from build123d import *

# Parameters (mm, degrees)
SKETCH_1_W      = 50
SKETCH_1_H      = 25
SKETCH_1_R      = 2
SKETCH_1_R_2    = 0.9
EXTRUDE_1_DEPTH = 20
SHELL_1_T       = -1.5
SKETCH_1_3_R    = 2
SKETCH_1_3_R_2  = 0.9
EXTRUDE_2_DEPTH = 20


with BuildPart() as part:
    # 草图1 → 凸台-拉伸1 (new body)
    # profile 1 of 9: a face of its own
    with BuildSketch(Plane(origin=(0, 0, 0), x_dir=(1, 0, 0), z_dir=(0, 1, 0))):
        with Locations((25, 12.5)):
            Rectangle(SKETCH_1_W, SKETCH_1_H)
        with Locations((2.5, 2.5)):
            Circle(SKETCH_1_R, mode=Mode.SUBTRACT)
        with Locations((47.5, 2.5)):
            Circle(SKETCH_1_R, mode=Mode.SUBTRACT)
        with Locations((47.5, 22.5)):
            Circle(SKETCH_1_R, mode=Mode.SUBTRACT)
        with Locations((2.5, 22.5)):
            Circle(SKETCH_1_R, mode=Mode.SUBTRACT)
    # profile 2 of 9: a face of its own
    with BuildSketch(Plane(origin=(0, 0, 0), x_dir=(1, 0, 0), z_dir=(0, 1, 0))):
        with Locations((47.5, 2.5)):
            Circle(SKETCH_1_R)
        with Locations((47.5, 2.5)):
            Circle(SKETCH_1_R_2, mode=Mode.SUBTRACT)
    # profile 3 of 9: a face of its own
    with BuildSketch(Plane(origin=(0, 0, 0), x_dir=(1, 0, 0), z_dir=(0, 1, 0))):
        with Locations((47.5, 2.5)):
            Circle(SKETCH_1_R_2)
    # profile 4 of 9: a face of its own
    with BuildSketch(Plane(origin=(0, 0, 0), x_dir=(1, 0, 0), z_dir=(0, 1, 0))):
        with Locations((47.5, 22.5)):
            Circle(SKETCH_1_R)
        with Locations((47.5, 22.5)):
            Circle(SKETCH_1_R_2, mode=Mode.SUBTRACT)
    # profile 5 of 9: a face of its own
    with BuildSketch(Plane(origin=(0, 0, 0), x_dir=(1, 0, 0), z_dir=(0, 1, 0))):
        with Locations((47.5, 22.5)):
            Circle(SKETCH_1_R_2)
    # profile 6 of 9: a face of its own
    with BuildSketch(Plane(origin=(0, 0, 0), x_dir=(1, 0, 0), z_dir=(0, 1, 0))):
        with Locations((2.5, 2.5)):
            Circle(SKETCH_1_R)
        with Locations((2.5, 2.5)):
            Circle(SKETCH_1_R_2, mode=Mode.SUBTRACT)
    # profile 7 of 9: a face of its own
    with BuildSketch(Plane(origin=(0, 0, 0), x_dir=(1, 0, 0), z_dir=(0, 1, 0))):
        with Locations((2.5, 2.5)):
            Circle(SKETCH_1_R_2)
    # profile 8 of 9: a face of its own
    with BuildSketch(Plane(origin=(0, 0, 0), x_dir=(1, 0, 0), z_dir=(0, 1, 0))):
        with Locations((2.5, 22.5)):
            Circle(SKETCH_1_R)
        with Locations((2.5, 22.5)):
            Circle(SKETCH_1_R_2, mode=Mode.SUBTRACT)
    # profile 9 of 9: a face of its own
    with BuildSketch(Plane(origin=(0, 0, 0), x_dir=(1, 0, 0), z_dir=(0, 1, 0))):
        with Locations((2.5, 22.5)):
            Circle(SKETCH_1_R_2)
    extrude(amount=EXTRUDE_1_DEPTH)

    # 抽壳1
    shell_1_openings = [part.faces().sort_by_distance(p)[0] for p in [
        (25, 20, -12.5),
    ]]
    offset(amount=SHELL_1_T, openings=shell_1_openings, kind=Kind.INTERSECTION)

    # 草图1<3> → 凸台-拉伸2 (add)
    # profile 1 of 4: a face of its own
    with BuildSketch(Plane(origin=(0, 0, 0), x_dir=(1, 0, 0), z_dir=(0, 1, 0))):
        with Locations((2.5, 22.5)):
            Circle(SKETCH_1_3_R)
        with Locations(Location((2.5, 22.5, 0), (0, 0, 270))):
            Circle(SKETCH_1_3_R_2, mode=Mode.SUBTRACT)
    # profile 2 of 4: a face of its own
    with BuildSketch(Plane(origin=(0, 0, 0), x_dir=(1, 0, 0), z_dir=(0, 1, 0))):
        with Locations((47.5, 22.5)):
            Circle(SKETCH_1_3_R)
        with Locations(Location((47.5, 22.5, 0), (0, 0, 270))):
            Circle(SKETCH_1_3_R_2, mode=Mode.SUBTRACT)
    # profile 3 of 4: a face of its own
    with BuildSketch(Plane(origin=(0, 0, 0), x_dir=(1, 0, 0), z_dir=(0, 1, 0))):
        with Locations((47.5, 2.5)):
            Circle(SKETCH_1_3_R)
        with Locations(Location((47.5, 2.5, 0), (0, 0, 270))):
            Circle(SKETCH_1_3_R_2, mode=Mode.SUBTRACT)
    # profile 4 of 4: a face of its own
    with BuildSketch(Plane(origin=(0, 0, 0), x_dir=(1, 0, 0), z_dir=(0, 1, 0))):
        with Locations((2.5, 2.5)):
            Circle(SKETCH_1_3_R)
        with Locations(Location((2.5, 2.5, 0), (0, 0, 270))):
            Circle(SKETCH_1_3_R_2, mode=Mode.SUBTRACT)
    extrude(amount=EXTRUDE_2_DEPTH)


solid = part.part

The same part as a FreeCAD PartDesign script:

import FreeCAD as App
import Part
import Sketcher
Q = App.Units.Quantity


def faces_at(feature, points):
    """Names of the faces that lie closest to the given points."""
    faces = feature.Shape.Faces
    near = lambda p: min(range(len(faces)), key=lambda i: faces[i].distToShape(Part.Vertex(*p))[0])
    return sorted({f"Face{near(p) + 1}" for p in points})

doc = App.newDocument("Part")
params = doc.addObject("Spreadsheet::Sheet", "Params")
for row, (alias, value) in enumerate([
    ("sketch1_width", "50 mm"),
    ("sketch1_height", "25 mm"),
    ("pad1_length", "20 mm"),
    ("thickness_wall", "1.5 mm"),
    ("sketch2_diameter", "4 mm"),
    ("sketch2_diameter2", "1.8 mm"),
    ("pad2_length", "20 mm"),
], start=1):
    params.set(f"A{row}", alias)
    params.set(f"B{row}", "=" + value)
    params.setAlias(f"B{row}", alias)

body = doc.addObject("PartDesign::Body", "Body")

sketch1 = body.newObject("Sketcher::SketchObject", "Sketch")
sketch1.AttachmentSupport = (doc.getObject("XZ_Plane"), [""])
sketch1.MapMode = "FlatFace"
sketch1.addGeometry([
    Part.LineSegment(App.Vector(0, -25, 0), App.Vector(0, 0, 0)),
    Part.LineSegment(App.Vector(0, 0, 0), App.Vector(50, 0, 0)),
    Part.LineSegment(App.Vector(50, 0, 0), App.Vector(50, -25, 0)),
    Part.LineSegment(App.Vector(50, -25, 0), App.Vector(0, -25, 0)),
], False)
sketch1.addConstraint([
    Sketcher.Constraint("Coincident", 0, 2, 1, 1),
    Sketcher.Constraint("Coincident", 1, 2, 2, 1),
    Sketcher.Constraint("Coincident", 2, 2, 3, 1),
    Sketcher.Constraint("Coincident", 3, 2, 0, 1),
    Sketcher.Constraint("Vertical", 0),
    Sketcher.Constraint("Horizontal", 1),
    Sketcher.Constraint("Vertical", 2),
    Sketcher.Constraint("Horizontal", 3),
    Sketcher.Constraint("Coincident", 0, 2, -1, 1),
    Sketcher.Constraint("DistanceX", 1, 1, 1, 2, Q("50 mm")),
    Sketcher.Constraint("DistanceY", 0, 1, 0, 2, Q("25 mm")),
])
sketch1.setExpression("Constraints[9]", "Params.sketch1_width")
sketch1.setExpression("Constraints[10]", "Params.sketch1_height")
pad1 = body.newObject("PartDesign::Pad", "Pad")
pad1.Profile = sketch1
pad1.setExpression("Length", "Params.pad1_length")
pad1.Reversed = True
doc.recompute()

thickness = body.newObject("PartDesign::Thickness", "Thickness")
thickness.Base = (pad1, faces_at(pad1, [(25, 20, -12.5)]))
thickness.setExpression("Value", "Params.thickness_wall")
thickness.Reversed = True
thickness.Join = "Intersection"

sketch2 = body.newObject("Sketcher::SketchObject", "Sketch001")
sketch2.AttachmentSupport = (doc.getObject("XZ_Plane"), [""])
sketch2.MapMode = "FlatFace"
sketch2.addGeometry([
    Part.Circle(App.Vector(2.5, -22.5, 0), App.Vector(0, 0, 1), 2),
    Part.Circle(App.Vector(2.5, -22.5, 0), App.Vector(0, 0, 1), 0.9),
    Part.Circle(App.Vector(47.5, -22.5, 0), App.Vector(0, 0, 1), 2),
    Part.Circle(App.Vector(47.5, -22.5, 0), App.Vector(0, 0, 1), 0.9),
    Part.Circle(App.Vector(47.5, -2.5, 0), App.Vector(0, 0, 1), 2),
    Part.Circle(App.Vector(47.5, -2.5, 0), App.Vector(0, 0, 1), 0.9),
    Part.Circle(App.Vector(2.5, -2.5, 0), App.Vector(0, 0, 1), 2),
    Part.Circle(App.Vector(2.5, -2.5, 0), App.Vector(0, 0, 1), 0.9),
], False)
sketch2.addConstraint([
    Sketcher.Constraint("Coincident", 1, 3, 0, 3),
    Sketcher.Constraint("Coincident", 3, 3, 2, 3),
    Sketcher.Constraint("Coincident", 5, 3, 4, 3),
    Sketcher.Constraint("Coincident", 7, 3, 6, 3),
    Sketcher.Constraint("Equal", 0, 2),
    Sketcher.Constraint("Equal", 1, 3),
    Sketcher.Constraint("Equal", 2, 4),
    Sketcher.Constraint("Equal", 3, 5),
    Sketcher.Constraint("Equal", 4, 6),
    Sketcher.Constraint("Equal", 5, 7),
    Sketcher.Constraint("Horizontal", 1, 3, 2, 3),
    Sketcher.Constraint("Horizontal", 5, 3, 6, 3),
    Sketcher.Constraint("Vertical", 3, 3, 4, 3),
    Sketcher.Constraint("Vertical", 1, 3, 6, 3),
    Sketcher.Constraint("Diameter", 0, Q("4 mm")),
    Sketcher.Constraint("Diameter", 1, Q("1.8 mm")),
    Sketcher.Constraint("DistanceX", 0, 3, 2, 3, Q("45 mm")),
    Sketcher.Constraint("DistanceY", 2, 3, 4, 3, Q("20 mm")),
    Sketcher.Constraint("DistanceX", -1, 1, 0, 3, Q("2.5 mm")),
    Sketcher.Constraint("DistanceY", 0, 3, -1, 1, Q("22.5 mm")),
])
sketch2.setExpression("Constraints[14]", "Params.sketch2_diameter")
sketch2.setExpression("Constraints[15]", "Params.sketch2_diameter2")
pad2 = body.newObject("PartDesign::Pad", "Pad001")
pad2.Profile = sketch2
pad2.setExpression("Length", "Params.pad2_length")
pad2.Reversed = True

doc.recompute()
